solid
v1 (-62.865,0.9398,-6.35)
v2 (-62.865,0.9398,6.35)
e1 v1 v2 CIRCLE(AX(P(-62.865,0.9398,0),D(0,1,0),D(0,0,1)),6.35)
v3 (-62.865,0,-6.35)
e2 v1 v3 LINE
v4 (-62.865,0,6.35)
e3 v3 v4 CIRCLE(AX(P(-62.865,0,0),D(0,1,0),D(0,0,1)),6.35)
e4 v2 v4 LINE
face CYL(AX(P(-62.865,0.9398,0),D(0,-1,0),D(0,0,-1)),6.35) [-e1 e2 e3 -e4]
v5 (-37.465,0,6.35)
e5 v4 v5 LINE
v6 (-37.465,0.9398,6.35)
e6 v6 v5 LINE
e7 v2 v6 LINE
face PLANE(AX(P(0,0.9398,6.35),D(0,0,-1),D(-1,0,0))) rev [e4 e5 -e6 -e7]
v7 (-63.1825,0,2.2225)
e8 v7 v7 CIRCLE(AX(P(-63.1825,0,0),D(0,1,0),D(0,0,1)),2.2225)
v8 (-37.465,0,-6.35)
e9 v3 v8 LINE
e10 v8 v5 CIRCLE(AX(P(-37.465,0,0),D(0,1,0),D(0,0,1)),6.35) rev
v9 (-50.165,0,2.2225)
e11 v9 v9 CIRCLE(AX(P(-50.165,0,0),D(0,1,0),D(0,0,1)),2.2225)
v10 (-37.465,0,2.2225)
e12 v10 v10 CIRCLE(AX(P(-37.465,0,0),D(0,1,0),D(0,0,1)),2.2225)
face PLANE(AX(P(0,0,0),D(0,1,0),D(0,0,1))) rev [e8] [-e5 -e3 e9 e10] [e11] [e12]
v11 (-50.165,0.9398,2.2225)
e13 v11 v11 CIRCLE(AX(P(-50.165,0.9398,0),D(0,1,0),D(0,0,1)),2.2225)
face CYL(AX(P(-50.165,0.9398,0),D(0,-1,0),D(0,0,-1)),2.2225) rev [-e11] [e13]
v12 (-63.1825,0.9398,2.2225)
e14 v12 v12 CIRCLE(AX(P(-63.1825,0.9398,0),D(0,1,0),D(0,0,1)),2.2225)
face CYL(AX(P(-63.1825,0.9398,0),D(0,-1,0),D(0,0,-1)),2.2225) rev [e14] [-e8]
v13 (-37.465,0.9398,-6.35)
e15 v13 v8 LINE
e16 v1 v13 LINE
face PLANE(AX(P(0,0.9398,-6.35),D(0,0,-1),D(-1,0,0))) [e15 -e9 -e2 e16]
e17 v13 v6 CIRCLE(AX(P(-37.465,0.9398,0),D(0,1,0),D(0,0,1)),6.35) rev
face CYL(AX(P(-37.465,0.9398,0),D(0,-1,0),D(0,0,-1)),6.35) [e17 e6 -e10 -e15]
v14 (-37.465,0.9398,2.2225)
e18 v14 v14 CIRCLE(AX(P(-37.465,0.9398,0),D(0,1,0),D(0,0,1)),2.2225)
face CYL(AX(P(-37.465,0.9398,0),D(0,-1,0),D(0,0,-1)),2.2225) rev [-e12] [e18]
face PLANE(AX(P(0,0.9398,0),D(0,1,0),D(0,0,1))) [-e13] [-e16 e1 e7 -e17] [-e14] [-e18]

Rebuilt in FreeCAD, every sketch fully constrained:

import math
import FreeCAD as App
import Part
import Sketcher
from FreeCAD import Vector
Q = App.Units.Quantity

doc = App.newDocument("Part")
body = doc.addObject("PartDesign::Body", "Body")

sketch1 = body.newObject("Sketcher::SketchObject", "Sketch")
sketch1.AttachmentSupport = (doc.getObject("XZ_Plane"), [""])
sketch1.MapMode = "FlatFace"
sketch1.addGeometry([
    Part.LineSegment(Vector(-37.465, -6.35, 0), Vector(-62.865, -6.35, 0)),
    Part.ArcOfCircle(Part.Circle(Vector(-62.865, 0, 0), Vector(0, 0, 1), 6.35), math.radians(90), math.radians(270)),
    Part.LineSegment(Vector(-62.865, 6.35, 0), Vector(-37.465, 6.35, 0)),
    Part.ArcOfCircle(Part.Circle(Vector(-37.465, 0, 0), Vector(0, 0, 1), 6.35), math.radians(-90), math.radians(90)),
    Part.Circle(Vector(-63.1825, 0, 0), Vector(0, 0, 1), 2.2225),
    Part.Circle(Vector(-50.165, 0, 0), Vector(0, 0, 1), 2.2225),
    Part.Circle(Vector(-37.465, 0, 0), Vector(0, 0, 1), 2.2225),
], False)
sketch1.addConstraint([
    Sketcher.Constraint("Tangent", 0, 2, 1, 2),
    Sketcher.Constraint("Tangent", 1, 1, 2, 1),
    Sketcher.Constraint("Tangent", 2, 2, 3, 2),
    Sketcher.Constraint("Tangent", 3, 1, 0, 1),
    Sketcher.Constraint("Horizontal", 0),
    Sketcher.Constraint("Horizontal", 2),
    Sketcher.Constraint("Coincident", 6, 3, 3, 3),
    Sketcher.Constraint("Equal", 4, 5),
    Sketcher.Constraint("Equal", 5, 6),
    Sketcher.Constraint("PointOnObject", 1, 3, -1),
    Sketcher.Constraint("PointOnObject", 4, 3, -1),
    Sketcher.Constraint("PointOnObject", 5, 3, -1),
    Sketcher.Constraint("DistanceX", 0, 2, 0, 1, Q("1 in")),
    Sketcher.Constraint("Radius", 1, Q("0.25 in")),
    Sketcher.Constraint("Diameter", 4, Q("0.175 in")),
    Sketcher.Constraint("DistanceX", 5, 3, 3, 3, Q("0.5 in")),
    Sketcher.Constraint("DistanceX", 1, 3, -1, 1, Q("2.475 in")),
    Sketcher.Constraint("DistanceX", 4, 3, -1, 1, Q("2.4875 in")),
])
pad1 = body.newObject("PartDesign::Pad", "Pad")
pad1.Profile = sketch1
pad1.Length = Q("0.037 in")
pad1.Reversed = True

doc.recompute()
